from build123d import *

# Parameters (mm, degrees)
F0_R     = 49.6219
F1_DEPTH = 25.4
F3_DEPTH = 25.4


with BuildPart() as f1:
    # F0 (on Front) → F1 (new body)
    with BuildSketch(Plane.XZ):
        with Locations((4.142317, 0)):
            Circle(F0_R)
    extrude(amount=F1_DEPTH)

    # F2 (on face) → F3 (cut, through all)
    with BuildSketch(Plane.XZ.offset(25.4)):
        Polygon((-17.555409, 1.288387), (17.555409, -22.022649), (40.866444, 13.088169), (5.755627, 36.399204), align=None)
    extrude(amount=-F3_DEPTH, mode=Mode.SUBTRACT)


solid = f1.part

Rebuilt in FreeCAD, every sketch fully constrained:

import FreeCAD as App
import Part
import Sketcher
from FreeCAD import Vector
Q = App.Units.Quantity

doc = App.newDocument("Part")
body = doc.addObject("PartDesign::Body", "Body")

# Sketch on XZ plane
sketch1 = body.newObject("Sketcher::SketchObject", "Sketch")
sketch1.AttachmentSupport = (doc.getObject("XZ_Plane"), [""])
sketch1.MapMode = "FlatFace"
sketch1.addGeometry(Part.Circle(Vector(4, 0, 0), Vector(0, 0, 1), 50), False)
sketch1.addConstraint(Sketcher.Constraint("PointOnObject", 0, 3, -1))
sketch1.addConstraint(Sketcher.Constraint("Diameter", 0, 99.2438))
sketch1.addConstraint(Sketcher.Constraint("DistanceX", -1, 1, 0, 3, 4.142317))
pad1 = body.newObject("PartDesign::Pad", "Pad")
pad1.Profile = sketch1
pad1.Length = Q("1 in")

# Sketch on XZ plane
sketch2 = body.newObject("Sketcher::SketchObject", "Sketch001")
sketch2.AttachmentSupport = (doc.getObject("XZ_Plane"), [""])
sketch2.MapMode = "FlatFace"
sketch2.AttachmentOffset = App.Placement(Vector(0, 0, 1 * 25.4), App.Rotation())
sketch2.addGeometry(Part.LineSegment(Vector(-18, 1, 0), Vector(18, -22, 0)), False)
sketch2.addGeometry(Part.LineSegment(Vector(18, -22, 0), Vector(41, 13, 0)), False)
sketch2.addGeometry(Part.LineSegment(Vector(41, 13, 0), Vector(6, 36, 0)), False)
sketch2.addGeometry(Part.LineSegment(Vector(6, 36, 0), Vector(-18, 1, 0)), False)
sketch2.addConstraint(Sketcher.Constraint("Coincident", 0, 2, 1, 1))
sketch2.addConstraint(Sketcher.Constraint("Coincident", 1, 2, 2, 1))
sketch2.addConstraint(Sketcher.Constraint("Coincident", 2, 2, 3, 1))
sketch2.addConstraint(Sketcher.Constraint("Coincident", 3, 2, 0, 1))
sketch2.addConstraint(Sketcher.Constraint("Perpendicular", 0, 1))
sketch2.addConstraint(Sketcher.Constraint("Perpendicular", 1, 2))
sketch2.addConstraint(Sketcher.Constraint("Perpendicular", 2, 3))
sketch2.addConstraint(Sketcher.Constraint("Equal", 0, 1))
sketch2.addConstraint(Sketcher.Constraint("Distance", 0, 42.144679))
sketch2.addConstraint(Sketcher.Constraint("DistanceX", -1, 1, 0, 2, 17.555409))
sketch2.addConstraint(Sketcher.Constraint("DistanceY", 0, 2, -1, 1, 22.022649))
sketch2.addConstraint(Sketcher.Constraint("DistanceY", -1, 1, 1, 2, 13.088169))
pocket1 = body.newObject("PartDesign::Pocket", "Pocket")
pocket1.Profile = sketch2
pocket1.Type = "ThroughAll"

doc.recompute()
